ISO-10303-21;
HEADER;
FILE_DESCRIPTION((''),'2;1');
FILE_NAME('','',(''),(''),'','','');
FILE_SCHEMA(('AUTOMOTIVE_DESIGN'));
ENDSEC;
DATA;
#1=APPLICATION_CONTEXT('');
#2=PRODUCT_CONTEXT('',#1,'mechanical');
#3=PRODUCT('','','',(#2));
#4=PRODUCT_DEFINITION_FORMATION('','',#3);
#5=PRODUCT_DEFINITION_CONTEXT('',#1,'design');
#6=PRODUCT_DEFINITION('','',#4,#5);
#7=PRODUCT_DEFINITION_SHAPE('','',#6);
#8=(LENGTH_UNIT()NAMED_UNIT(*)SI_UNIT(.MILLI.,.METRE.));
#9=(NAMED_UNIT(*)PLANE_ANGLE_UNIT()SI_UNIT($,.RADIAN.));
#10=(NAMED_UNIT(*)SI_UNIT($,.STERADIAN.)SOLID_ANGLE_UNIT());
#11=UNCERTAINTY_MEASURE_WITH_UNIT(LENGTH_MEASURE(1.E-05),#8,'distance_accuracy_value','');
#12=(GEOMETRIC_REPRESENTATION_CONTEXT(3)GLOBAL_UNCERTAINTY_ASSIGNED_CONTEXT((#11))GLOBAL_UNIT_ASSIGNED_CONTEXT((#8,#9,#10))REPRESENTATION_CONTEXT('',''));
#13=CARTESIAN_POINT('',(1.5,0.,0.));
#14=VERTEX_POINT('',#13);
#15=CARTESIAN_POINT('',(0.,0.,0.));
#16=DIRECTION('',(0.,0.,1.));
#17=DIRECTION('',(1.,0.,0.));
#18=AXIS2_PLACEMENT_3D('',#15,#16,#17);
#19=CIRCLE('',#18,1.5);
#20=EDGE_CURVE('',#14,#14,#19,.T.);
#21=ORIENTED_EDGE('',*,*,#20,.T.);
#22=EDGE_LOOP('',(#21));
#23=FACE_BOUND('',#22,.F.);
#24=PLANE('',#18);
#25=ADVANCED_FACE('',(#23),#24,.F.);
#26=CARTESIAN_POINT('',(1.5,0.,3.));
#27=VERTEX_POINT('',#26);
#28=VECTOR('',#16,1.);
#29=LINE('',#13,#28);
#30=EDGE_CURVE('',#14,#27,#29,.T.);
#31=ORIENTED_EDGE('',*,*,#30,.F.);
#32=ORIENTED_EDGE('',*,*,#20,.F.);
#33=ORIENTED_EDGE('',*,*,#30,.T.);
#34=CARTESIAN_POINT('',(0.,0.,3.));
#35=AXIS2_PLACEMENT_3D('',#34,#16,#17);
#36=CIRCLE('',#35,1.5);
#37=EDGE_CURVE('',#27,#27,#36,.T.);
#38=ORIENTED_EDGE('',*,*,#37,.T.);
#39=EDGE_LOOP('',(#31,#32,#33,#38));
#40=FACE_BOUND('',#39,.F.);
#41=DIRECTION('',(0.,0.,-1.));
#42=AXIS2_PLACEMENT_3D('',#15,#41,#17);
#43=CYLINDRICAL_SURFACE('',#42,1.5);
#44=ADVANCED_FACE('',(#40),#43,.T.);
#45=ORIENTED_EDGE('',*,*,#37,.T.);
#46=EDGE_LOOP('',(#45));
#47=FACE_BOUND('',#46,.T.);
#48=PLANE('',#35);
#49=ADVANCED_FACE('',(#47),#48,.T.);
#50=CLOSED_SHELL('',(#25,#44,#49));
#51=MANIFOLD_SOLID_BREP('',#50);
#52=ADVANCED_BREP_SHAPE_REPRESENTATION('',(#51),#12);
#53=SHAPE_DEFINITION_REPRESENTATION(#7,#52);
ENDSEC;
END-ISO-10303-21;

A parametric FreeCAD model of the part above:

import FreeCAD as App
import Part
import Sketcher
from FreeCAD import Vector

doc = App.newDocument("Part")
body = doc.addObject("PartDesign::Body", "Body")

# Sketch on XY plane
sketch1 = doc.addObject("Sketcher::SketchObject", "Sketch")
body.addObject(sketch1)
sketch1.AttachmentSupport = (doc.XY_Plane, [""])
sketch1.MapMode = "FlatFace"
sketch1.addGeometry(Part.Circle(Vector(0, 0, 0), Vector(0, 0, 1), 1.5), False)
sketch1.addConstraint(Sketcher.Constraint("Coincident", 0, 3, -1, 1))
sketch1.addConstraint(Sketcher.Constraint("Diameter", 0, 3.0))
pad1 = doc.addObject("PartDesign::Pad", "Pad")
body.addObject(pad1)
pad1.Profile = sketch1
pad1.Length = 3

doc.recompute()
